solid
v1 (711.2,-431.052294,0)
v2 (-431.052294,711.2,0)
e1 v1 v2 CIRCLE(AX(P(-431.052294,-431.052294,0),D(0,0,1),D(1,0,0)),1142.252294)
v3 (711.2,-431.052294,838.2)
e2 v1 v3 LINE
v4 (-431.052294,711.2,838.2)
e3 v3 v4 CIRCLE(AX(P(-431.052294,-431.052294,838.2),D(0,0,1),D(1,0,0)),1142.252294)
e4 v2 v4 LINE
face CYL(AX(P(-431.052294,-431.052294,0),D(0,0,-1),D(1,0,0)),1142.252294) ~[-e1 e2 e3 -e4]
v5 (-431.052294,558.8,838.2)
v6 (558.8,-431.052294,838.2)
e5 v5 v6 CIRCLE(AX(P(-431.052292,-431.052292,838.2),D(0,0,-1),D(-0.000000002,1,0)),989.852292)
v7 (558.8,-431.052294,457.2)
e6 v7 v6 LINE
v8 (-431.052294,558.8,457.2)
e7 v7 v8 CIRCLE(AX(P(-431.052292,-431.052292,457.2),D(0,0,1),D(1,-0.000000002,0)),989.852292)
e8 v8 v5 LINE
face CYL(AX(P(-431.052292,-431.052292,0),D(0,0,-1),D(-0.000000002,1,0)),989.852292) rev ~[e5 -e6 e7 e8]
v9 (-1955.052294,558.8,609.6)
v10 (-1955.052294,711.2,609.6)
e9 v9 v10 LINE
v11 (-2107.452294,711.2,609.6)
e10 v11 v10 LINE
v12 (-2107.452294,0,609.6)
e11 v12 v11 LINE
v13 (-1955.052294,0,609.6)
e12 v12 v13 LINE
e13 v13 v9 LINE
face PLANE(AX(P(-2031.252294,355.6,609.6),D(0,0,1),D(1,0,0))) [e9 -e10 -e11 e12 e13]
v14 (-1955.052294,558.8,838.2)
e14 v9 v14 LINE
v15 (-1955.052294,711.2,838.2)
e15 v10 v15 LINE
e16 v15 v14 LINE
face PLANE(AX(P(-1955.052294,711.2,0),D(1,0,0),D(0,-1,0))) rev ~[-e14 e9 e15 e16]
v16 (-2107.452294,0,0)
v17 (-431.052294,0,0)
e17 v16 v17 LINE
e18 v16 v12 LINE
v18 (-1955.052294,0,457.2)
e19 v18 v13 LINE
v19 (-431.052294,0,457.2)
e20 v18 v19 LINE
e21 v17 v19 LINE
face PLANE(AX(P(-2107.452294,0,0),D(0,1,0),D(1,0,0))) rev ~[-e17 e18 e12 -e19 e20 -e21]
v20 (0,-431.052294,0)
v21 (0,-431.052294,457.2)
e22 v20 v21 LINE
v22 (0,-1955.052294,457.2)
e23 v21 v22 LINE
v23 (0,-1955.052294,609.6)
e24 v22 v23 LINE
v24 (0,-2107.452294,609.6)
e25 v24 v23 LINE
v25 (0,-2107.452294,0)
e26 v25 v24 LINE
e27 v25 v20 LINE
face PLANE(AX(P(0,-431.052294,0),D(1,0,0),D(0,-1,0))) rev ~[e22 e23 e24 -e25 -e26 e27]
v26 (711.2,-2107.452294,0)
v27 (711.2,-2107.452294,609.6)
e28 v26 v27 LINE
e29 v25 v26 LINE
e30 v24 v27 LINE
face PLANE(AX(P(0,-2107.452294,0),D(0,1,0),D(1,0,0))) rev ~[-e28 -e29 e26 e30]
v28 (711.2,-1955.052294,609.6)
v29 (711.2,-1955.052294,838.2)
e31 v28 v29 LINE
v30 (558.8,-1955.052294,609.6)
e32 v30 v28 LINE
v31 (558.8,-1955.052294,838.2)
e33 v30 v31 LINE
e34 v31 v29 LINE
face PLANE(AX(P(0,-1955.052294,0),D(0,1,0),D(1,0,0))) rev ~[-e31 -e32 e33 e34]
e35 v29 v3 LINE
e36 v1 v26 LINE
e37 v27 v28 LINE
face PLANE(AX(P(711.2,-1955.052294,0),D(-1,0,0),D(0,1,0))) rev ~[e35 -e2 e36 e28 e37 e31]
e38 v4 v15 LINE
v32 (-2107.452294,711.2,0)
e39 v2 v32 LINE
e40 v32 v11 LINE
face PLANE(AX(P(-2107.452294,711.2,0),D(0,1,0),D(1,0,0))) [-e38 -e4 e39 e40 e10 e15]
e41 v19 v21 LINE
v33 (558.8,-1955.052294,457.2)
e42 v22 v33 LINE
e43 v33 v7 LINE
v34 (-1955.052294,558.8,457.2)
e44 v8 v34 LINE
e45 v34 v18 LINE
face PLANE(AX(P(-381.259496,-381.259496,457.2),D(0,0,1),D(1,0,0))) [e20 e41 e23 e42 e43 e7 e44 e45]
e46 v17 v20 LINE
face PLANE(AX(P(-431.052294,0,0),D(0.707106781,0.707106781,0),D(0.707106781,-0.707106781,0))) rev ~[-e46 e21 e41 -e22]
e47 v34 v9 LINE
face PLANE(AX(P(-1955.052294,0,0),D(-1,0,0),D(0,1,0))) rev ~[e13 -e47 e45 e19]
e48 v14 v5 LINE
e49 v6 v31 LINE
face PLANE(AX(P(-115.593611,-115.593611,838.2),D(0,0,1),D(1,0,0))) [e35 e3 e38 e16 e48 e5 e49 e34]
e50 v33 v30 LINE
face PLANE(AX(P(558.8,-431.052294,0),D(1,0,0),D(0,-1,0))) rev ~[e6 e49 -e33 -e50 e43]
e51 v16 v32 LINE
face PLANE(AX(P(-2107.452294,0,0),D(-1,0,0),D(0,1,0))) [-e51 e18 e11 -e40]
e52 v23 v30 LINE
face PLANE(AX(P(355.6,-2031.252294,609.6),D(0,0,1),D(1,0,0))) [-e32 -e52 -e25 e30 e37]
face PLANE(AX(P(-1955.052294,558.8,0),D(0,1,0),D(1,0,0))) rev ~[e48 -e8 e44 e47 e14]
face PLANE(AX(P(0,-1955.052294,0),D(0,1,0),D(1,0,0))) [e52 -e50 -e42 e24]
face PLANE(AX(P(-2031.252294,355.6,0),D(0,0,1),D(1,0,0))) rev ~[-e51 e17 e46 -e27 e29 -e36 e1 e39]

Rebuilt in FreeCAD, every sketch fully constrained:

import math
import FreeCAD as App
import Part
import Sketcher

V = App.Vector
Q = App.Units.Quantity

doc = App.newDocument("Part")
body = doc.addObject("PartDesign::Body", "Body")

# Sketch on XY plane
sketch1 = body.newObject("Sketcher::SketchObject", "Sketch")
sketch1.AttachmentSupport = (doc.getObject("XY_Plane"), [""])
sketch1.MapMode = "FlatFace"
sketch1.addGeometry([
    Part.LineSegment(V(-1955, 0, 0), V(-431, 0, 0)),  # 0
    Part.LineSegment(V(-431, 0, 0), V(0, -431, 0)),  # 1
    Part.LineSegment(V(0, -431, 0), V(0, -1955, 0)),  # 2
    Part.LineSegment(V(0, -1955, 0), V(559, -1955, 0)),  # 3
    Part.LineSegment(V(559, -1955, 0), V(559, -431, 0)),  # 4
    Part.ArcOfCircle(Part.Circle(V(-431, -431, 0), V(0, 0, 1), 990), math.radians(0), math.radians(90)),  # 5
    Part.LineSegment(V(-431, 559, 0), V(-1955, 559, 0)),  # 6
    Part.LineSegment(V(-1955, 559, 0), V(-1955, 0, 0)),  # 7
], False)
sketch1.addConstraint([
    Sketcher.Constraint("Coincident", 0, 2, 1, 1),
    Sketcher.Constraint("Coincident", 1, 2, 2, 1),
    Sketcher.Constraint("Coincident", 2, 2, 3, 1),
    Sketcher.Constraint("Coincident", 3, 2, 4, 1),
    Sketcher.Constraint("Coincident", 4, 2, 5, 1),
    Sketcher.Constraint("Coincident", 5, 2, 6, 1),
    Sketcher.Constraint("Coincident", 6, 2, 7, 1),
    Sketcher.Constraint("Coincident", 7, 2, 0, 1),
    Sketcher.Constraint("Horizontal", 0),
    Sketcher.Constraint("Vertical", 2),
    Sketcher.Constraint("Horizontal", 3),
    Sketcher.Constraint("Vertical", 4),
    Sketcher.Constraint("Horizontal", 6),
    Sketcher.Constraint("Vertical", 7),
    Sketcher.Constraint("PointOnObject", 0, 2, -1),
    Sketcher.Constraint("PointOnObject", 1, 2, -2),
    Sketcher.Constraint("Horizontal", 5, 3, 1, 2),
    Sketcher.Constraint("Horizontal", 1, 2, 4, 2),
    Sketcher.Constraint("Vertical", 5, 3, 0, 2),
    Sketcher.Constraint("Equal", 0, 6),
    Sketcher.Constraint("Equal", 6, 2),
    Sketcher.Constraint("Equal", 3, 7),
    Sketcher.Constraint("DistanceX", 0, 1, 0, 2, Q("60 in")),
    Sketcher.Constraint("DistanceX", 3, 1, 3, 2, Q("22 in")),
    Sketcher.Constraint("Distance", 1, Q("24 in")),
])
pad1 = body.newObject("PartDesign::Pad", "Pad")
pad1.Profile = sketch1
pad1.Length = Q("18 in")

# Sketch on XY plane
sketch2 = body.newObject("Sketcher::SketchObject", "Sketch001")
sketch2.AttachmentSupport = (doc.getObject("XY_Plane"), [""])
sketch2.MapMode = "FlatFace"
sketch2.addGeometry([
    Part.LineSegment(V(-1955, 559, 0), V(-431, 559, 0)),  # 0
    Part.ArcOfCircle(Part.Circle(V(-431, -431, 0), V(0, 0, 1), 990), math.radians(0), math.radians(90)),  # 1
    Part.LineSegment(V(559, -431, 0), V(559, -1955, 0)),  # 2
    Part.LineSegment(V(559, -1955, 0), V(711, -1955, 0)),  # 3
    Part.LineSegment(V(711, -1955, 0), V(711, -431, 0)),  # 4
    Part.ArcOfCircle(Part.Circle(V(-431, -431, 0), V(0, 0, 1), 1142), math.radians(0), math.radians(90)),  # 5
    Part.LineSegment(V(-431, 711, 0), V(-1955, 711, 0)),  # 6
    Part.LineSegment(V(-1955, 711, 0), V(-1955, 559, 0)),  # 7
], False)
sketch2.addConstraint([
    Sketcher.Constraint("Coincident", 0, 2, 1, 2),
    Sketcher.Constraint("Coincident", 1, 1, 2, 1),
    Sketcher.Constraint("Coincident", 2, 2, 3, 1),
    Sketcher.Constraint("Coincident", 3, 2, 4, 1),
    Sketcher.Constraint("Coincident", 4, 2, 5, 1),
    Sketcher.Constraint("Coincident", 5, 2, 6, 1),
    Sketcher.Constraint("Coincident", 6, 2, 7, 1),
    Sketcher.Constraint("Coincident", 7, 2, 0, 1),
    Sketcher.Constraint("Horizontal", 0),
    Sketcher.Constraint("Vertical", 2),
    Sketcher.Constraint("Horizontal", 3),
    Sketcher.Constraint("Vertical", 4),
    Sketcher.Constraint("Horizontal", 6),
    Sketcher.Constraint("Vertical", 7),
    Sketcher.Constraint("Coincident", 5, 3, 1, 3),
    Sketcher.Constraint("Vertical", 5, 3, 0, 2),
    Sketcher.Constraint("Equal", 0, 6),
    Sketcher.Constraint("Equal", 6, 2),
    Sketcher.Constraint("Equal", 2, 4),
    Sketcher.Constraint("DistanceX", 0, 1, 0, 2, Q("60 in")),
    Sketcher.Constraint("DistanceX", 3, 1, 3, 2, Q("6 in")),
    Sketcher.Constraint("DistanceY", -1, 1, 0, 2, Q("22 in")),
    Sketcher.Constraint("DistanceX", -1, 1, 1, 1, Q("22 in")),
    Sketcher.Constraint("DistanceY", 2, 2, 5, 3, Q("60 in")),
    Sketcher.Constraint("Radius", 1, Q("989.852292 mm")),
])
pad2 = body.newObject("PartDesign::Pad", "Pad001")
pad2.Profile = sketch2
pad2.Length = Q("33 in")

# Sketch on XY plane
sketch3 = body.newObject("Sketcher::SketchObject", "Sketch002")
sketch3.AttachmentSupport = (doc.getObject("XY_Plane"), [""])
sketch3.MapMode = "FlatFace"
sketch3.addGeometry([
    Part.LineSegment(V(-2107, 711, 0), V(-2107, 0, 0)),  # 0
    Part.LineSegment(V(-2107, 0, 0), V(-1955, 0, 0)),  # 1
    Part.LineSegment(V(-1955, 0, 0), V(-1955, 711, 0)),  # 2
    Part.LineSegment(V(-1955, 711, 0), V(-2107, 711, 0)),  # 3
    Part.LineSegment(V(0, -1955, 0), V(0, -2107, 0)),  # 4
    Part.LineSegment(V(0, -2107, 0), V(711, -2107, 0)),  # 5
    Part.LineSegment(V(711, -2107, 0), V(711, -1955, 0)),  # 6
    Part.LineSegment(V(711, -1955, 0), V(0, -1955, 0)),  # 7
], False)
sketch3.addConstraint([
    Sketcher.Constraint("Coincident", 0, 2, 1, 1),
    Sketcher.Constraint("Coincident", 1, 2, 2, 1),
    Sketcher.Constraint("Coincident", 2, 2, 3, 1),
    Sketcher.Constraint("Coincident", 3, 2, 0, 1),
    Sketcher.Constraint("Coincident", 4, 2, 5, 1),
    Sketcher.Constraint("Coincident", 5, 2, 6, 1),
    Sketcher.Constraint("Coincident", 6, 2, 7, 1),
    Sketcher.Constraint("Coincident", 7, 2, 4, 1),
    Sketcher.Constraint("Vertical", 0),
    Sketcher.Constraint("Horizontal", 1),
    Sketcher.Constraint("Vertical", 2),
    Sketcher.Constraint("Horizontal", 3),
    Sketcher.Constraint("Vertical", 4),
    Sketcher.Constraint("Horizontal", 5),
    Sketcher.Constraint("Vertical", 6),
    Sketcher.Constraint("Horizontal", 7),
    Sketcher.Constraint("PointOnObject", 0, 2, -1),
    Sketcher.Constraint("PointOnObject", 4, 2, -2),
    Sketcher.Constraint("Equal", 7, 0),
    Sketcher.Constraint("Equal", 3, 4),
    Sketcher.Constraint("DistanceX", 1, 1, 1, 2, Q("6 in")),
    Sketcher.Constraint("DistanceX", 5, 1, 5, 2, Q("28 in")),
    Sketcher.Constraint("DistanceX", 0, 2, -1, 1, Q("2107.452294 mm")),
    Sketcher.Constraint("DistanceY", 4, 2, -1, 1, Q("2107.452294 mm")),
])
pad3 = body.newObject("PartDesign::Pad", "Pad002")
pad3.Profile = sketch3
pad3.Length = Q("24 in")

doc.recompute()
